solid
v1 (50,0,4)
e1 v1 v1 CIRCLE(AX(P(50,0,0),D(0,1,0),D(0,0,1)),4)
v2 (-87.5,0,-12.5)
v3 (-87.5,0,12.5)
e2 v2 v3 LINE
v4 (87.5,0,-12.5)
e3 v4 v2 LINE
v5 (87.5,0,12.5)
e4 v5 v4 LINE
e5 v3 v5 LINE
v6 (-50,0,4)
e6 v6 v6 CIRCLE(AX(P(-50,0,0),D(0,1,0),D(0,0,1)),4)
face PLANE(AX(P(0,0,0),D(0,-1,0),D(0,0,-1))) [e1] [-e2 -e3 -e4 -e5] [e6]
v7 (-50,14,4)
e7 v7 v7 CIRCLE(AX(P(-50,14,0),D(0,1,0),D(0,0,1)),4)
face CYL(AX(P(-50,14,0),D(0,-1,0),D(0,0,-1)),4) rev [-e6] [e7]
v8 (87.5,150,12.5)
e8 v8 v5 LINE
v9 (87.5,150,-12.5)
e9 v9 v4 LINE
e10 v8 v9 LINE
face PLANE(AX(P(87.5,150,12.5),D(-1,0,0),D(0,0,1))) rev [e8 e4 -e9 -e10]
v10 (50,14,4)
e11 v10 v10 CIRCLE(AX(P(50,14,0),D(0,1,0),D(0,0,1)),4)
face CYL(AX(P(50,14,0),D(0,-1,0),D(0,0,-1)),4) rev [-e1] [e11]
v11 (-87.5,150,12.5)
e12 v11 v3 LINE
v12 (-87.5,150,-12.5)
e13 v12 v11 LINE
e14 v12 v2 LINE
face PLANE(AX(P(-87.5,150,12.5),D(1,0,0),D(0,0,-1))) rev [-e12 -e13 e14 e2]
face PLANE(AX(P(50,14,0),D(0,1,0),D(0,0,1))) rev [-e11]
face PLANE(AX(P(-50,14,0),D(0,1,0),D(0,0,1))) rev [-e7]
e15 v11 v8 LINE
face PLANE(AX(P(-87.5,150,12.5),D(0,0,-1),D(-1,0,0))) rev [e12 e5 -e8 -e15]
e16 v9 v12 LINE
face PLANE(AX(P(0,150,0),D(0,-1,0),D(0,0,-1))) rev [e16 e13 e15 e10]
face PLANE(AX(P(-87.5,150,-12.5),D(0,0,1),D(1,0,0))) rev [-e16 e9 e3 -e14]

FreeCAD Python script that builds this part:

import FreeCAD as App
import Part
import Sketcher
Q = App.Units.Quantity

doc = App.newDocument("Part")
body = doc.addObject("PartDesign::Body", "Body")

# Sketch on XZ plane
sketch1 = doc.addObject("Sketcher::SketchObject", "Sketch")
body.addObject(sketch1)
sketch1.AttachmentSupport = (doc.XZ_Plane, [""])
sketch1.MapMode = "FlatFace"
sketch1.addGeometry(Part.LineSegment(App.Vector(-88, -12, 0), App.Vector(-88, 12, 0)), False)
sketch1.addGeometry(Part.LineSegment(App.Vector(-88, 12, 0), App.Vector(88, 12, 0)), False)
sketch1.addGeometry(Part.LineSegment(App.Vector(88, 12, 0), App.Vector(88, -12, 0)), False)
sketch1.addGeometry(Part.LineSegment(App.Vector(88, -12, 0), App.Vector(-88, -12, 0)), False)
sketch1.addConstraint(Sketcher.Constraint("Coincident", 0, 2, 1, 1))
sketch1.addConstraint(Sketcher.Constraint("Coincident", 1, 2, 2, 1))
sketch1.addConstraint(Sketcher.Constraint("Coincident", 2, 2, 3, 1))
sketch1.addConstraint(Sketcher.Constraint("Coincident", 3, 2, 0, 1))
sketch1.addConstraint(Sketcher.Constraint("Vertical", 0))
sketch1.addConstraint(Sketcher.Constraint("Horizontal", 1))
sketch1.addConstraint(Sketcher.Constraint("Vertical", 2))
sketch1.addConstraint(Sketcher.Constraint("Horizontal", 3))
sketch1.addConstraint(Sketcher.Constraint("Symmetric", 0, 2, 2, 2, -1, 1))
sketch1.addConstraint(Sketcher.Constraint("DistanceX", 1, 1, 1, 2, Q("175 mm")))
sketch1.addConstraint(Sketcher.Constraint("DistanceY", 0, 1, 0, 2, Q("25 mm")))
pad1 = doc.addObject("PartDesign::Pad", "Pad")
body.addObject(pad1)
pad1.Profile = sketch1
pad1.Length = 150
pad1.Reversed = True

# Sketch on XZ plane
sketch2 = doc.addObject("Sketcher::SketchObject", "Sketch001")
body.addObject(sketch2)
sketch2.AttachmentSupport = (doc.XZ_Plane, [""])
sketch2.MapMode = "FlatFace"
sketch2.addGeometry(Part.Circle(App.Vector(-50, 0, 0), App.Vector(0, 0, 1), 4), False)
sketch2.addGeometry(Part.Circle(App.Vector(50, 0, 0), App.Vector(0, 0, 1), 4), False)
sketch2.addConstraint(Sketcher.Constraint("Equal", 0, 1))
sketch2.addConstraint(Sketcher.Constraint("Symmetric", 0, 3, 1, 3, -1, 1))
sketch2.addConstraint(Sketcher.Constraint("PointOnObject", 0, 3, -1))
sketch2.addConstraint(Sketcher.Constraint("Diameter", 0, Q("8 mm")))
sketch2.addConstraint(Sketcher.Constraint("DistanceX", 0, 3, -1, 1, Q("50 mm")))
pocket1 = doc.addObject("PartDesign::Pocket", "Pocket")
body.addObject(pocket1)
pocket1.Profile = sketch2
pocket1.Length = 14

doc.recompute()
